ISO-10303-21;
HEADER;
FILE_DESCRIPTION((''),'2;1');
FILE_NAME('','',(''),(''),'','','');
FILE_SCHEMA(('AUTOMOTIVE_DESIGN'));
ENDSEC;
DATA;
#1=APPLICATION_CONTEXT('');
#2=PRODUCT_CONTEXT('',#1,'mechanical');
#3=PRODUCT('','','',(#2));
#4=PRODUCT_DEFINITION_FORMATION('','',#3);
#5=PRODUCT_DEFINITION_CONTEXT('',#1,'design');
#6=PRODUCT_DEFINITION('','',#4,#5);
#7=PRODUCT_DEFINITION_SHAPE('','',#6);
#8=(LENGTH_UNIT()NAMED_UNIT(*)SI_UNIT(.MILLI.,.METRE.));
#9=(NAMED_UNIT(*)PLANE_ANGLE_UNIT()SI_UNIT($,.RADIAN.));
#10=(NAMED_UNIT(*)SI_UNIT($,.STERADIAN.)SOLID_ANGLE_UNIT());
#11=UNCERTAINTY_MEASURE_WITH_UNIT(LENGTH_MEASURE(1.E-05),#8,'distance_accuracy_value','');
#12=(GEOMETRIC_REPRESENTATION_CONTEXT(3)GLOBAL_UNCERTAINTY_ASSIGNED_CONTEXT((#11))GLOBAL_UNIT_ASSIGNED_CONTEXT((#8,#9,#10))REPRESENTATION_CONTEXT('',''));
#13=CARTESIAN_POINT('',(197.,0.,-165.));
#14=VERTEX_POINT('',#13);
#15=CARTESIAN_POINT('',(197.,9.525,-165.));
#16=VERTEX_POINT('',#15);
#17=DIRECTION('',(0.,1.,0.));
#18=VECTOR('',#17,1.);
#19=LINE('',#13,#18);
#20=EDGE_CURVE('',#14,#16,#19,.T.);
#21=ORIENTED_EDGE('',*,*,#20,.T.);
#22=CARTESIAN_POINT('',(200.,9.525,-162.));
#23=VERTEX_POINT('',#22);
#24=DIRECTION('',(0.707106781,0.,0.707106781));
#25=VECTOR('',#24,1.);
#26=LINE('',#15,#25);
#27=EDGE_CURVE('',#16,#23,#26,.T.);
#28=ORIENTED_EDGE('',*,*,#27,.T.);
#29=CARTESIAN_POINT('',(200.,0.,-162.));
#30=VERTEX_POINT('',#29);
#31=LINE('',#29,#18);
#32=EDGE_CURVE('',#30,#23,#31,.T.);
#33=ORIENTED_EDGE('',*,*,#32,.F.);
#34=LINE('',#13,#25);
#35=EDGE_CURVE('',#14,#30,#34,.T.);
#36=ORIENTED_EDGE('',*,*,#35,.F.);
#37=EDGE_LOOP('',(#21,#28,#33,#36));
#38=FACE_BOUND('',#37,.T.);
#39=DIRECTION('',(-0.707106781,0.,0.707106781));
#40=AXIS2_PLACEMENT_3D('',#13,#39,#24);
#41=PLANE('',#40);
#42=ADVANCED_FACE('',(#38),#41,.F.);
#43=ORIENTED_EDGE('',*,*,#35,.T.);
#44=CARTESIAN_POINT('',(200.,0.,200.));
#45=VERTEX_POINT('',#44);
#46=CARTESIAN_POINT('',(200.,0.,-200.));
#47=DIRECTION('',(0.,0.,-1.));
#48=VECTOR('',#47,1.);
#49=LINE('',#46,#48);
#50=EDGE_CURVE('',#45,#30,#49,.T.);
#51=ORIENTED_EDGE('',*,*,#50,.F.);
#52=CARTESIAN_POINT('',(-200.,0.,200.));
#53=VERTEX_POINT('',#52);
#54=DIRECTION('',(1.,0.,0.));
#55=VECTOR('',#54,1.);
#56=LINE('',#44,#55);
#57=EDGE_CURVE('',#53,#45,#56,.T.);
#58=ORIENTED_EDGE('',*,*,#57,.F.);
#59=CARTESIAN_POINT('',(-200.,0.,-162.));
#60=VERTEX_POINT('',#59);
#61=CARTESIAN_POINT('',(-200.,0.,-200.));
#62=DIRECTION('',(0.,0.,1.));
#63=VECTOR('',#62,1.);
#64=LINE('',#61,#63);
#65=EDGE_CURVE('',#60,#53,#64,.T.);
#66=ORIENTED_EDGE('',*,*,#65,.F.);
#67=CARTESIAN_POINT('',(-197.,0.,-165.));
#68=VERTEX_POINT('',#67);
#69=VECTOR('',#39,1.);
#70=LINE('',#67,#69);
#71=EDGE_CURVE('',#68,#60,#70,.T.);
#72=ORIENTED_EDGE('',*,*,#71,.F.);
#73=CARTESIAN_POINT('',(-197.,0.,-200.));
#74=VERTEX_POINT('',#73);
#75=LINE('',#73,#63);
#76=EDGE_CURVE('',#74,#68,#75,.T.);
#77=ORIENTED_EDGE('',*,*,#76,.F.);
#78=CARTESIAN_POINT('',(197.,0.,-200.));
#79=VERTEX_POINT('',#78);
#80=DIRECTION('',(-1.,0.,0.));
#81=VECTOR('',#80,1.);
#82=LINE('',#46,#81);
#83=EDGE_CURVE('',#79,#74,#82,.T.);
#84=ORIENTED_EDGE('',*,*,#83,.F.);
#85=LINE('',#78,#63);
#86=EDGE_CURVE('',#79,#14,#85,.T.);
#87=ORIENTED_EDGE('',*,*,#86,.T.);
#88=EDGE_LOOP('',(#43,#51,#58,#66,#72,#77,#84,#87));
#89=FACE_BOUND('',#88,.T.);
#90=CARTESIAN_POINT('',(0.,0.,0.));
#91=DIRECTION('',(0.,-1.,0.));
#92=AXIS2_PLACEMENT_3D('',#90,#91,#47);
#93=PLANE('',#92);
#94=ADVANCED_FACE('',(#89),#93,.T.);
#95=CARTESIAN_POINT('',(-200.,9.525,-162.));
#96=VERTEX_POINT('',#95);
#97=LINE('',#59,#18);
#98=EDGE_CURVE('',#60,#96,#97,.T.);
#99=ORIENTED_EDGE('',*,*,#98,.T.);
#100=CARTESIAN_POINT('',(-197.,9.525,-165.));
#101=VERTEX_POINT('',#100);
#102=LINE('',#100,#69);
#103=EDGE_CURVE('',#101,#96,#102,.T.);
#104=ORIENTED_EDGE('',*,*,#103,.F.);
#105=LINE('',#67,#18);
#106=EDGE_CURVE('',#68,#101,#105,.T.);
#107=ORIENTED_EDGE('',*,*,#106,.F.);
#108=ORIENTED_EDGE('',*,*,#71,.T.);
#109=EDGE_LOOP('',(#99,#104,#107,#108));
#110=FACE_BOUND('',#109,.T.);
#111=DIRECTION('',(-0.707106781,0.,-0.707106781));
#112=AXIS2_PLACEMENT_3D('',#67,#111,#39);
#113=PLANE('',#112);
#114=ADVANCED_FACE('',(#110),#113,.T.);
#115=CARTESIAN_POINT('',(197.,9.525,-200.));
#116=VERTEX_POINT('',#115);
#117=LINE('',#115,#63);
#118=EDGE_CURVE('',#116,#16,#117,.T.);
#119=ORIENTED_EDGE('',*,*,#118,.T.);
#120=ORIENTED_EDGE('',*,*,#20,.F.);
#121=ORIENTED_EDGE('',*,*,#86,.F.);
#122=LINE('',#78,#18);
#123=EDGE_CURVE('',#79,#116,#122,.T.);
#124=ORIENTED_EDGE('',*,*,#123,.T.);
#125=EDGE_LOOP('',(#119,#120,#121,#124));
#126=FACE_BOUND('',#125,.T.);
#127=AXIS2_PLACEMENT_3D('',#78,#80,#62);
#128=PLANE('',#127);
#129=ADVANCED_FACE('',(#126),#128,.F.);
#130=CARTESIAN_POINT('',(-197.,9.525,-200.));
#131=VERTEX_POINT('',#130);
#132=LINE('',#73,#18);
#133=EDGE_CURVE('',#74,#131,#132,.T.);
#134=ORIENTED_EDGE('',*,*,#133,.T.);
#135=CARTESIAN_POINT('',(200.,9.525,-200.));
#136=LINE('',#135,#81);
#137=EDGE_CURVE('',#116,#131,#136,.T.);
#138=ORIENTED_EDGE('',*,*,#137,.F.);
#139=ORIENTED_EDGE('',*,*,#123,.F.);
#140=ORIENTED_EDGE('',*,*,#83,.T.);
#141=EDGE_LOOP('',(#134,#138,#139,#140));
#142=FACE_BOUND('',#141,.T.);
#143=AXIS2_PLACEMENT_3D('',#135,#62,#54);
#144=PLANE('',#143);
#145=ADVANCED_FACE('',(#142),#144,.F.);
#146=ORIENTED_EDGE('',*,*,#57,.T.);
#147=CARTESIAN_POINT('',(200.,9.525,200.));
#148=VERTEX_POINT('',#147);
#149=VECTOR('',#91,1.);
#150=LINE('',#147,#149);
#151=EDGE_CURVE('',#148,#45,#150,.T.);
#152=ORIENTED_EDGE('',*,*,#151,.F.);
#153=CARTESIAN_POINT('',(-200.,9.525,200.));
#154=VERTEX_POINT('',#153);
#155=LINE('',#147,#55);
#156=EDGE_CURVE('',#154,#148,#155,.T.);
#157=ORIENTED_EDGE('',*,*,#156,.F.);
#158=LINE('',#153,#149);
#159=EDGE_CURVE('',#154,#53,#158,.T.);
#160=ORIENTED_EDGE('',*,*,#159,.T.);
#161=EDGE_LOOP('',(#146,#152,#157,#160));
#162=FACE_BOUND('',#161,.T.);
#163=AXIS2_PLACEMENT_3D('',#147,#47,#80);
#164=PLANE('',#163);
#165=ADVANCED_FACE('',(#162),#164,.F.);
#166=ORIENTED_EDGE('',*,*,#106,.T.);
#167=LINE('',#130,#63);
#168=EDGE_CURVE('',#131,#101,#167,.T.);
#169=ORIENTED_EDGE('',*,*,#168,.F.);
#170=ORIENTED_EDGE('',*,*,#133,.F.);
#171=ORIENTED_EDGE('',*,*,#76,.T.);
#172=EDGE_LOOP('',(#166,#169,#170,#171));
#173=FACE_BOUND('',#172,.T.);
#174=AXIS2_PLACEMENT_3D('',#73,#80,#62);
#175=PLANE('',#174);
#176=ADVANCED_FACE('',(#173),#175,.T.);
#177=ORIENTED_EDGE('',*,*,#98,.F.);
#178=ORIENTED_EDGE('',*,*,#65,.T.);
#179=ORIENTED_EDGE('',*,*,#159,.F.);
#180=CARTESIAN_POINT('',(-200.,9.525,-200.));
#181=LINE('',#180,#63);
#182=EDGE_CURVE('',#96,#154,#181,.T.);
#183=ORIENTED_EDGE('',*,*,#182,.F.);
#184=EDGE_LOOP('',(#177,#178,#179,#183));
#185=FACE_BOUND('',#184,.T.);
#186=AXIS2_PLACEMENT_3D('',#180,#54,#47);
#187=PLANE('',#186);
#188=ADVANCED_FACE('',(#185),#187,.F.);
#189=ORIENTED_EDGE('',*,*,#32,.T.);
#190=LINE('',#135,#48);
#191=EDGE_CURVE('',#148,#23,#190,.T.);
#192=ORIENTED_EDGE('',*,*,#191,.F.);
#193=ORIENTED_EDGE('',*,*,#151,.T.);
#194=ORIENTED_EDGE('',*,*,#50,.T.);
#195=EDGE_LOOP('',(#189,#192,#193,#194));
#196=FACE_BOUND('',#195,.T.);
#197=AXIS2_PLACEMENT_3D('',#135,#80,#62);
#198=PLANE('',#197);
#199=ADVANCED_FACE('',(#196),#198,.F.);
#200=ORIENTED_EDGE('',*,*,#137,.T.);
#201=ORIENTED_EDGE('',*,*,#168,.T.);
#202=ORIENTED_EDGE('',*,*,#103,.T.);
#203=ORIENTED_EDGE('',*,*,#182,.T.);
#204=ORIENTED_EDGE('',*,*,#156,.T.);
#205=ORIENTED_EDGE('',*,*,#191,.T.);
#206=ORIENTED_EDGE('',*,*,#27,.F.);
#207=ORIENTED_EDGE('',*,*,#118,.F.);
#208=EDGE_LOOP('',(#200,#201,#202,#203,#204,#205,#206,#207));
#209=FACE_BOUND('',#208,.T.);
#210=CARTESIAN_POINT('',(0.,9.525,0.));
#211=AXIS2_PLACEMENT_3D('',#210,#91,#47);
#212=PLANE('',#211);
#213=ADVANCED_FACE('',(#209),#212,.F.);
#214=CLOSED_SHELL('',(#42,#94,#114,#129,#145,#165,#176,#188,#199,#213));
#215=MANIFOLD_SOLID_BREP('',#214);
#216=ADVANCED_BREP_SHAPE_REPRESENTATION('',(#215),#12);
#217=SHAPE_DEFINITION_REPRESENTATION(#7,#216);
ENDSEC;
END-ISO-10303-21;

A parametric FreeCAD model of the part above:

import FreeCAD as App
import Part
import Sketcher
from FreeCAD import Vector
Q = App.Units.Quantity

doc = App.newDocument("Part")
body = doc.addObject("PartDesign::Body", "Body")

# Sketch on XZ plane
sketch1 = body.newObject("Sketcher::SketchObject", "Sketch")
sketch1.AttachmentSupport = (doc.getObject("XZ_Plane"), [""])
sketch1.MapMode = "FlatFace"
sketch1.addGeometry(Part.LineSegment(Vector(-200, -200, 0), Vector(-200, 200, 0)), False)
sketch1.addGeometry(Part.LineSegment(Vector(-200, 200, 0), Vector(200, 200, 0)), False)
sketch1.addGeometry(Part.LineSegment(Vector(200, 200, 0), Vector(200, -200, 0)), False)
sketch1.addGeometry(Part.LineSegment(Vector(200, -200, 0), Vector(-200, -200, 0)), False)
sketch1.addConstraint(Sketcher.Constraint("Coincident", 0, 2, 1, 1))
sketch1.addConstraint(Sketcher.Constraint("Coincident", 1, 2, 2, 1))
sketch1.addConstraint(Sketcher.Constraint("Coincident", 2, 2, 3, 1))
sketch1.addConstraint(Sketcher.Constraint("Coincident", 3, 2, 0, 1))
sketch1.addConstraint(Sketcher.Constraint("Vertical", 0))
sketch1.addConstraint(Sketcher.Constraint("Horizontal", 1))
sketch1.addConstraint(Sketcher.Constraint("Vertical", 2))
sketch1.addConstraint(Sketcher.Constraint("Horizontal", 3))
sketch1.addConstraint(Sketcher.Constraint("Symmetric", 0, 2, 2, 2, -1, 1))
sketch1.addConstraint(Sketcher.Constraint("Equal", 3, 0))
sketch1.addConstraint(Sketcher.Constraint("DistanceX", 1, 1, 1, 2, Q("400 mm")))
pad1 = body.newObject("PartDesign::Pad", "Pad")
pad1.Profile = sketch1
pad1.Length = 9.525
pad1.Reversed = True

# Sketch on XZ plane
sketch2 = body.newObject("Sketcher::SketchObject", "Sketch001")
sketch2.AttachmentSupport = (doc.getObject("XZ_Plane"), [""])
sketch2.MapMode = "FlatFace"
sketch2.AttachmentOffset = App.Placement(Vector(0, 0, -9.525), App.Rotation())
sketch2.addGeometry(Part.LineSegment(Vector(197, -200, 0), Vector(197, -165, 0)), False)
sketch2.addGeometry(Part.LineSegment(Vector(197, -165, 0), Vector(200, -162, 0)), False)
sketch2.addGeometry(Part.LineSegment(Vector(200, -162, 0), Vector(200, -200, 0)), False)
sketch2.addGeometry(Part.LineSegment(Vector(200, -200, 0), Vector(197, -200, 0)), False)
sketch2.addConstraint(Sketcher.Constraint("Coincident", 0, 2, 1, 1))
sketch2.addConstraint(Sketcher.Constraint("Coincident", 1, 2, 2, 1))
sketch2.addConstraint(Sketcher.Constraint("Coincident", 2, 2, 3, 1))
sketch2.addConstraint(Sketcher.Constraint("Coincident", 3, 2, 0, 1))
sketch2.addConstraint(Sketcher.Constraint("Vertical", 0))
sketch2.addConstraint(Sketcher.Constraint("Vertical", 2))
sketch2.addConstraint(Sketcher.Constraint("Horizontal", 3))
sketch2.addConstraint(Sketcher.Constraint("DistanceX", 3, 2, 3, 1, Q("3 mm")))
sketch2.addConstraint(Sketcher.Constraint("DistanceY", 0, 1, 0, 2, Q("35 mm")))
sketch2.addConstraint(Sketcher.Constraint("DistanceY", 2, 2, 2, 1, Q("38 mm")))
sketch2.addConstraint(Sketcher.Constraint("DistanceX", -1, 1, 0, 2, Q("197 mm")))
sketch2.addConstraint(Sketcher.Constraint("DistanceY", 0, 2, -1, 1, Q("165 mm")))
pocket1 = body.newObject("PartDesign::Pocket", "Pocket")
pocket1.Profile = sketch2
pocket1.Type = "ThroughAll"
pocket1.Reversed = True
doc.recompute()

mirrored = body.newObject("PartDesign::Mirrored", "Mirrored")
mirrored.Originals = [pocket1]
mirrored.MirrorPlane = (doc.getObject("YZ_Plane"), [""])
body.Tip = mirrored

doc.recompute()
